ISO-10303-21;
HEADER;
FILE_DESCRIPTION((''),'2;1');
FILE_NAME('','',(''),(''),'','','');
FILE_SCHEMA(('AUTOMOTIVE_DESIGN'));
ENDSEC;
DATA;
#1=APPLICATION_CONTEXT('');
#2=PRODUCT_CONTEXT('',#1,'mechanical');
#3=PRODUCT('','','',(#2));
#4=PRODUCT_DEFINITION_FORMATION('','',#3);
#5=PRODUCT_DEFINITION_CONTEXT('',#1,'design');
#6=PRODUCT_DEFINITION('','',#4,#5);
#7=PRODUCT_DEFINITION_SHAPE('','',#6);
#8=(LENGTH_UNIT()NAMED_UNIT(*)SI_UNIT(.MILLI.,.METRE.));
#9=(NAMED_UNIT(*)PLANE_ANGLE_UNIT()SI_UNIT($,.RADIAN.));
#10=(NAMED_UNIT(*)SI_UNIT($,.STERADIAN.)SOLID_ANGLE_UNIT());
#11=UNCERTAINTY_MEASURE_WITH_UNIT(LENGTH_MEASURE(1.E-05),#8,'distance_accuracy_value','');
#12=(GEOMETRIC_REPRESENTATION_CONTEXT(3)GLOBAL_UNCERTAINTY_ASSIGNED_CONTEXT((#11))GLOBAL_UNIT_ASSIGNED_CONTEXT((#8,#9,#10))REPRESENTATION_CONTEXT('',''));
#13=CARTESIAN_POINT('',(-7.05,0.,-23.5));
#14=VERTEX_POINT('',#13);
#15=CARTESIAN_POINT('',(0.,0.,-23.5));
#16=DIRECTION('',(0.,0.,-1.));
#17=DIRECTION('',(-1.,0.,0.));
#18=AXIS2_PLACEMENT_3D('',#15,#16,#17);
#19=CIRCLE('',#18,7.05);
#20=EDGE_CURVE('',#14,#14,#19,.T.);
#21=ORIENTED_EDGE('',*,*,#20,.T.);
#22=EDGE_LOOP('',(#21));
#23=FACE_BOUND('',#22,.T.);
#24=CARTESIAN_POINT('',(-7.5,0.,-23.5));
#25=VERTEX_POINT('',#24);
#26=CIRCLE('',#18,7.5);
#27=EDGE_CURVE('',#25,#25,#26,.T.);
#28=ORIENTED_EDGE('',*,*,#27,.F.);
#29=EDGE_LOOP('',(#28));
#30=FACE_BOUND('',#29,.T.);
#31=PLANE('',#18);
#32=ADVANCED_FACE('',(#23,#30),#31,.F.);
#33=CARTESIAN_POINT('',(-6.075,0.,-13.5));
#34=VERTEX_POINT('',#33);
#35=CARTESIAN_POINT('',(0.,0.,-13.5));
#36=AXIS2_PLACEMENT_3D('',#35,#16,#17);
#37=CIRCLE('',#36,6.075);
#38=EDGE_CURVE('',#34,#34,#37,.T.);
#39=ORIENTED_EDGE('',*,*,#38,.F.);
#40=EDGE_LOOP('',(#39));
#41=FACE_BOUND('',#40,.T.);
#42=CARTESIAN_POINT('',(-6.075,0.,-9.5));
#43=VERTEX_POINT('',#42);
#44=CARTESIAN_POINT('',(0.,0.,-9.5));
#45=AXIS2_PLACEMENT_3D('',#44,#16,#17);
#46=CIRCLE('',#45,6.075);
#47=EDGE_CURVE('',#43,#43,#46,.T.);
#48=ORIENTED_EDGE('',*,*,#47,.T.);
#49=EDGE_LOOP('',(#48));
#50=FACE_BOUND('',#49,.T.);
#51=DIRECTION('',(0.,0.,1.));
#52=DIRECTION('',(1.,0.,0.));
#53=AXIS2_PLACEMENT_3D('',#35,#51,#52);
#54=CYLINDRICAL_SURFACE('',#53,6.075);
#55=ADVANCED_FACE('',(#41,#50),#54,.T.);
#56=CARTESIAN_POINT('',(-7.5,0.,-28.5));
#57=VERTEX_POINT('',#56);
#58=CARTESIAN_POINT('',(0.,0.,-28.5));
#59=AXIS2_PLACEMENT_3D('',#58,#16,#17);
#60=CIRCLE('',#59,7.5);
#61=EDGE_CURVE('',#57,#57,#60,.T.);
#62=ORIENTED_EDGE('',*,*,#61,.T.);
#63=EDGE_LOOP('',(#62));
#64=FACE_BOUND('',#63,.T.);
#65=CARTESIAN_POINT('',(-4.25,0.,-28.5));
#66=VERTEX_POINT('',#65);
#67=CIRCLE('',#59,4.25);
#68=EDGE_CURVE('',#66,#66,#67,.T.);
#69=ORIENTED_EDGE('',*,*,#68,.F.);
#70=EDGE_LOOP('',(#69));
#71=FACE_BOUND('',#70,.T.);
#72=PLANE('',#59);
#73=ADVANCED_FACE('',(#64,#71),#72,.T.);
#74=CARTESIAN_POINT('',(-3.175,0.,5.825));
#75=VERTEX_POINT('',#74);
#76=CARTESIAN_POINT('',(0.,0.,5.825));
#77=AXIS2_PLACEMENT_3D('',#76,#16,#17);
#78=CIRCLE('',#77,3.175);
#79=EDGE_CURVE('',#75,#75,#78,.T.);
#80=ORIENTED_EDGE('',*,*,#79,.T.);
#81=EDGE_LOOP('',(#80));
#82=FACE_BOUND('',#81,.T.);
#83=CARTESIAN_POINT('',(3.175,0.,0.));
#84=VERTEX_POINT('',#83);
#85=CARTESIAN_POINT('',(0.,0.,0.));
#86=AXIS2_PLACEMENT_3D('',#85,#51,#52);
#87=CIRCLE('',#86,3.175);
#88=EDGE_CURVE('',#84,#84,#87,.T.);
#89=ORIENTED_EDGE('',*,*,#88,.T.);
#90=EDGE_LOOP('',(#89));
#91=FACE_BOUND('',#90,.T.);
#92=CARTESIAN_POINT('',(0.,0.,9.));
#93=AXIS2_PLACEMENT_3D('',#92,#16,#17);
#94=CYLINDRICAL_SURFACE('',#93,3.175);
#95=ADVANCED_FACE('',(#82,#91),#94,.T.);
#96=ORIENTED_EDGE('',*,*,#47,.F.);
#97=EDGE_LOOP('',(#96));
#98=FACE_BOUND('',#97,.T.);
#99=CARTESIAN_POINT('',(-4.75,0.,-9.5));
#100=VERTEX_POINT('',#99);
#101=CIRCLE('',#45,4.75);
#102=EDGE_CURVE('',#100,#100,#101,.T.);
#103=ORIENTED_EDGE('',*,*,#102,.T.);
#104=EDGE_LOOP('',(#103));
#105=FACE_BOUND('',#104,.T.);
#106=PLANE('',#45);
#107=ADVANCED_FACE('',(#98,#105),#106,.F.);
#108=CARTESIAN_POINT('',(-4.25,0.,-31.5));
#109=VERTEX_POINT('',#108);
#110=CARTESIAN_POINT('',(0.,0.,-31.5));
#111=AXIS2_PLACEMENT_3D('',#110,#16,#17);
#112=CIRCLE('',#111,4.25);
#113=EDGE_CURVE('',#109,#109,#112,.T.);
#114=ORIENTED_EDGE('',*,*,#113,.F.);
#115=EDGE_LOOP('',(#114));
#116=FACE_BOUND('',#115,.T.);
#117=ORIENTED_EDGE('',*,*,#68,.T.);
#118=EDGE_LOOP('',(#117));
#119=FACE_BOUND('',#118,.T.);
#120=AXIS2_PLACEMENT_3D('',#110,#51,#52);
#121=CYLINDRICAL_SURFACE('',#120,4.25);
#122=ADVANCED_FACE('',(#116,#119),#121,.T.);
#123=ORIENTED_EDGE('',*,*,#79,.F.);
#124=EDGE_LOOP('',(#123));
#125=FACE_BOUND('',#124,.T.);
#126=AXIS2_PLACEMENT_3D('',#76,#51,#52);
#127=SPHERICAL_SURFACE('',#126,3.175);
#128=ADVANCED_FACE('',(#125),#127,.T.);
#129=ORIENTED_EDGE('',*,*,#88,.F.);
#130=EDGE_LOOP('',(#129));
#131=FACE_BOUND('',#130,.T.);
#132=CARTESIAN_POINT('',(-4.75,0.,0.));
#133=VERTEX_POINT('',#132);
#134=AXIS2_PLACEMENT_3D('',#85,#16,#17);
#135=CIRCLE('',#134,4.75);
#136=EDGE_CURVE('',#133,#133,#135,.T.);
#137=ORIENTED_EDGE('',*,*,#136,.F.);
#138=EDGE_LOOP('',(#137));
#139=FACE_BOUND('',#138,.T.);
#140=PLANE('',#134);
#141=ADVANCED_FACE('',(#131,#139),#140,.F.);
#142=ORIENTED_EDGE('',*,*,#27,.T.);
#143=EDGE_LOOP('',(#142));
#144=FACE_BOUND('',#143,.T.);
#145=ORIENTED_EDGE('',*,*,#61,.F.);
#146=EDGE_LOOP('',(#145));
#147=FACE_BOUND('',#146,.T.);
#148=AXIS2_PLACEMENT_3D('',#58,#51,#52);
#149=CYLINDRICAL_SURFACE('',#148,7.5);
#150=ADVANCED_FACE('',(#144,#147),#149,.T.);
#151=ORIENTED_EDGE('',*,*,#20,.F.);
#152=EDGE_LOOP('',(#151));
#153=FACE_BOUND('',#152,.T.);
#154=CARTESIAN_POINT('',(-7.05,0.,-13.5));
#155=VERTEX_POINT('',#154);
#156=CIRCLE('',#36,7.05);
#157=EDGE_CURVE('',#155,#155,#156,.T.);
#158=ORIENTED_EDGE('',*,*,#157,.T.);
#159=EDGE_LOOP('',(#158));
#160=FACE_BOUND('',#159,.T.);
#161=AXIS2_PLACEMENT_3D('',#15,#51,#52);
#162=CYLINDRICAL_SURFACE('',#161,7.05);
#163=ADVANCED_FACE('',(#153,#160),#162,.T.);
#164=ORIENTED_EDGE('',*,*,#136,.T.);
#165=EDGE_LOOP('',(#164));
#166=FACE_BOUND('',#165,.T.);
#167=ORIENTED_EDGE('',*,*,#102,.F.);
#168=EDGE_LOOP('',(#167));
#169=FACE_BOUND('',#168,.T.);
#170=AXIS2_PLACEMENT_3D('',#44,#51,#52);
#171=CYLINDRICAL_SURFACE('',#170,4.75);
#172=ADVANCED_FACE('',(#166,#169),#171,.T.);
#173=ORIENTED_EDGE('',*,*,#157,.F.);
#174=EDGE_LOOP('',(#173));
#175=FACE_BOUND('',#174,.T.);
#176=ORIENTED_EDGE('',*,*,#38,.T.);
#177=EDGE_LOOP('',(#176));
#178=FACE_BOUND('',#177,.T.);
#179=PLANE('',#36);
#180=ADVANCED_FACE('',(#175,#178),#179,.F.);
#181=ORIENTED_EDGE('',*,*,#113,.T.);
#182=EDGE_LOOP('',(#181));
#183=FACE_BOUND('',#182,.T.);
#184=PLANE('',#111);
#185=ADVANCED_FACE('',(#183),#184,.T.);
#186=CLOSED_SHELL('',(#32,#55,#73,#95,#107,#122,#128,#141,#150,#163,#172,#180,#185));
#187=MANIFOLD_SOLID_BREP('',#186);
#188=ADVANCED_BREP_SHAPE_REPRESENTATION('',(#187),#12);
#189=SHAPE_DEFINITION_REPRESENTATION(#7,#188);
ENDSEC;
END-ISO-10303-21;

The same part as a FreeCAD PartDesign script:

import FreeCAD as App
import Part
import Sketcher

V = App.Vector


def edges_at(feature, points):
    """Names of the edges that pass closest to the given points."""
    edges = feature.Shape.Edges
    near = lambda p: min(range(len(edges)), key=lambda i: edges[i].distToShape(Part.Vertex(*p))[0])
    return sorted({f"Edge{near(p) + 1}" for p in points})

doc = App.newDocument("Part")
body = doc.addObject("PartDesign::Body", "Body")

# Sketch on XY plane
sketch1 = body.newObject("Sketcher::SketchObject", "Sketch")
sketch1.AttachmentSupport = (doc.getObject("XY_Plane"), [""])
sketch1.MapMode = "FlatFace"
sketch1.addGeometry(Part.Circle(V(0, 0, 0), V(0, 0, 1), 3.175), False)
sketch1.addConstraint([
    Sketcher.Constraint("Coincident", 0, 3, -1, 1),
    Sketcher.Constraint("Diameter", 0, 6.35),
])
pad1 = body.newObject("PartDesign::Pad", "Pad")
pad1.Profile = sketch1
pad1.Length = 9

# Sketch on XY plane
sketch2 = body.newObject("Sketcher::SketchObject", "Sketch001")
sketch2.AttachmentSupport = (doc.getObject("XY_Plane"), [""])
sketch2.MapMode = "FlatFace"
sketch2.addGeometry(Part.Circle(V(0, 0, 0), V(0, 0, 1), 4.75), False)
sketch2.addConstraint([
    Sketcher.Constraint("Coincident", 0, 3, -1, 1),
    Sketcher.Constraint("Diameter", 0, 9.5),
])
pad2 = body.newObject("PartDesign::Pad", "Pad001")
pad2.Profile = sketch2
pad2.Length = 9.5
pad2.Reversed = True

# Sketch on XY plane
sketch3 = body.newObject("Sketcher::SketchObject", "Sketch002")
sketch3.AttachmentSupport = (doc.getObject("XY_Plane"), [""])
sketch3.MapMode = "FlatFace"
sketch3.AttachmentOffset = App.Placement(V(0, 0, -9.5), App.Rotation())
sketch3.addGeometry(Part.Circle(V(0, 0, 0), V(0, 0, 1), 6.075), False)
sketch3.addConstraint([
    Sketcher.Constraint("Coincident", 0, 3, -1, 1),
    Sketcher.Constraint("Diameter", 0, 12.15),
])
pad3 = body.newObject("PartDesign::Pad", "Pad002")
pad3.Profile = sketch3
pad3.Length = 4
pad3.Reversed = True

# Sketch on XY plane
sketch4 = body.newObject("Sketcher::SketchObject", "Sketch003")
sketch4.AttachmentSupport = (doc.getObject("XY_Plane"), [""])
sketch4.MapMode = "FlatFace"
sketch4.AttachmentOffset = App.Placement(V(0, 0, -13.5), App.Rotation())
sketch4.addGeometry(Part.Circle(V(0, 0, 0), V(0, 0, 1), 7.05), False)
sketch4.addConstraint([
    Sketcher.Constraint("Coincident", 0, 3, -1, 1),
    Sketcher.Constraint("Diameter", 0, 14.1),
])
pad4 = body.newObject("PartDesign::Pad", "Pad003")
pad4.Profile = sketch4
pad4.Length = 10
pad4.Reversed = True

# Sketch on XY plane
sketch5 = body.newObject("Sketcher::SketchObject", "Sketch004")
sketch5.AttachmentSupport = (doc.getObject("XY_Plane"), [""])
sketch5.MapMode = "FlatFace"
sketch5.AttachmentOffset = App.Placement(V(0, 0, -23.5), App.Rotation())
sketch5.addGeometry(Part.Circle(V(0, 0, 0), V(0, 0, 1), 7.5), False)
sketch5.addConstraint([
    Sketcher.Constraint("Coincident", 0, 3, -1, 1),
    Sketcher.Constraint("Diameter", 0, 15.0),
])
pad5 = body.newObject("PartDesign::Pad", "Pad004")
pad5.Profile = sketch5
pad5.Length = 5
pad5.Reversed = True

# Sketch on XY plane
sketch6 = body.newObject("Sketcher::SketchObject", "Sketch005")
sketch6.AttachmentSupport = (doc.getObject("XY_Plane"), [""])
sketch6.MapMode = "FlatFace"
sketch6.AttachmentOffset = App.Placement(V(0, 0, -28.5), App.Rotation())
sketch6.addGeometry(Part.Circle(V(0, 0, 0), V(0, 0, 1), 4.25), False)
sketch6.addConstraint([
    Sketcher.Constraint("Coincident", 0, 3, -1, 1),
    Sketcher.Constraint("Diameter", 0, 8.5),
])
pad6 = body.newObject("PartDesign::Pad", "Pad005")
pad6.Profile = sketch6
pad6.Length = 3
pad6.Reversed = True
doc.recompute()

fillet = body.newObject("PartDesign::Fillet", "Fillet")
fillet.Base = (pad6, edges_at(pad6, [(-3.175, 0, 9)]))
fillet.Radius = 3.175

doc.recompute()
